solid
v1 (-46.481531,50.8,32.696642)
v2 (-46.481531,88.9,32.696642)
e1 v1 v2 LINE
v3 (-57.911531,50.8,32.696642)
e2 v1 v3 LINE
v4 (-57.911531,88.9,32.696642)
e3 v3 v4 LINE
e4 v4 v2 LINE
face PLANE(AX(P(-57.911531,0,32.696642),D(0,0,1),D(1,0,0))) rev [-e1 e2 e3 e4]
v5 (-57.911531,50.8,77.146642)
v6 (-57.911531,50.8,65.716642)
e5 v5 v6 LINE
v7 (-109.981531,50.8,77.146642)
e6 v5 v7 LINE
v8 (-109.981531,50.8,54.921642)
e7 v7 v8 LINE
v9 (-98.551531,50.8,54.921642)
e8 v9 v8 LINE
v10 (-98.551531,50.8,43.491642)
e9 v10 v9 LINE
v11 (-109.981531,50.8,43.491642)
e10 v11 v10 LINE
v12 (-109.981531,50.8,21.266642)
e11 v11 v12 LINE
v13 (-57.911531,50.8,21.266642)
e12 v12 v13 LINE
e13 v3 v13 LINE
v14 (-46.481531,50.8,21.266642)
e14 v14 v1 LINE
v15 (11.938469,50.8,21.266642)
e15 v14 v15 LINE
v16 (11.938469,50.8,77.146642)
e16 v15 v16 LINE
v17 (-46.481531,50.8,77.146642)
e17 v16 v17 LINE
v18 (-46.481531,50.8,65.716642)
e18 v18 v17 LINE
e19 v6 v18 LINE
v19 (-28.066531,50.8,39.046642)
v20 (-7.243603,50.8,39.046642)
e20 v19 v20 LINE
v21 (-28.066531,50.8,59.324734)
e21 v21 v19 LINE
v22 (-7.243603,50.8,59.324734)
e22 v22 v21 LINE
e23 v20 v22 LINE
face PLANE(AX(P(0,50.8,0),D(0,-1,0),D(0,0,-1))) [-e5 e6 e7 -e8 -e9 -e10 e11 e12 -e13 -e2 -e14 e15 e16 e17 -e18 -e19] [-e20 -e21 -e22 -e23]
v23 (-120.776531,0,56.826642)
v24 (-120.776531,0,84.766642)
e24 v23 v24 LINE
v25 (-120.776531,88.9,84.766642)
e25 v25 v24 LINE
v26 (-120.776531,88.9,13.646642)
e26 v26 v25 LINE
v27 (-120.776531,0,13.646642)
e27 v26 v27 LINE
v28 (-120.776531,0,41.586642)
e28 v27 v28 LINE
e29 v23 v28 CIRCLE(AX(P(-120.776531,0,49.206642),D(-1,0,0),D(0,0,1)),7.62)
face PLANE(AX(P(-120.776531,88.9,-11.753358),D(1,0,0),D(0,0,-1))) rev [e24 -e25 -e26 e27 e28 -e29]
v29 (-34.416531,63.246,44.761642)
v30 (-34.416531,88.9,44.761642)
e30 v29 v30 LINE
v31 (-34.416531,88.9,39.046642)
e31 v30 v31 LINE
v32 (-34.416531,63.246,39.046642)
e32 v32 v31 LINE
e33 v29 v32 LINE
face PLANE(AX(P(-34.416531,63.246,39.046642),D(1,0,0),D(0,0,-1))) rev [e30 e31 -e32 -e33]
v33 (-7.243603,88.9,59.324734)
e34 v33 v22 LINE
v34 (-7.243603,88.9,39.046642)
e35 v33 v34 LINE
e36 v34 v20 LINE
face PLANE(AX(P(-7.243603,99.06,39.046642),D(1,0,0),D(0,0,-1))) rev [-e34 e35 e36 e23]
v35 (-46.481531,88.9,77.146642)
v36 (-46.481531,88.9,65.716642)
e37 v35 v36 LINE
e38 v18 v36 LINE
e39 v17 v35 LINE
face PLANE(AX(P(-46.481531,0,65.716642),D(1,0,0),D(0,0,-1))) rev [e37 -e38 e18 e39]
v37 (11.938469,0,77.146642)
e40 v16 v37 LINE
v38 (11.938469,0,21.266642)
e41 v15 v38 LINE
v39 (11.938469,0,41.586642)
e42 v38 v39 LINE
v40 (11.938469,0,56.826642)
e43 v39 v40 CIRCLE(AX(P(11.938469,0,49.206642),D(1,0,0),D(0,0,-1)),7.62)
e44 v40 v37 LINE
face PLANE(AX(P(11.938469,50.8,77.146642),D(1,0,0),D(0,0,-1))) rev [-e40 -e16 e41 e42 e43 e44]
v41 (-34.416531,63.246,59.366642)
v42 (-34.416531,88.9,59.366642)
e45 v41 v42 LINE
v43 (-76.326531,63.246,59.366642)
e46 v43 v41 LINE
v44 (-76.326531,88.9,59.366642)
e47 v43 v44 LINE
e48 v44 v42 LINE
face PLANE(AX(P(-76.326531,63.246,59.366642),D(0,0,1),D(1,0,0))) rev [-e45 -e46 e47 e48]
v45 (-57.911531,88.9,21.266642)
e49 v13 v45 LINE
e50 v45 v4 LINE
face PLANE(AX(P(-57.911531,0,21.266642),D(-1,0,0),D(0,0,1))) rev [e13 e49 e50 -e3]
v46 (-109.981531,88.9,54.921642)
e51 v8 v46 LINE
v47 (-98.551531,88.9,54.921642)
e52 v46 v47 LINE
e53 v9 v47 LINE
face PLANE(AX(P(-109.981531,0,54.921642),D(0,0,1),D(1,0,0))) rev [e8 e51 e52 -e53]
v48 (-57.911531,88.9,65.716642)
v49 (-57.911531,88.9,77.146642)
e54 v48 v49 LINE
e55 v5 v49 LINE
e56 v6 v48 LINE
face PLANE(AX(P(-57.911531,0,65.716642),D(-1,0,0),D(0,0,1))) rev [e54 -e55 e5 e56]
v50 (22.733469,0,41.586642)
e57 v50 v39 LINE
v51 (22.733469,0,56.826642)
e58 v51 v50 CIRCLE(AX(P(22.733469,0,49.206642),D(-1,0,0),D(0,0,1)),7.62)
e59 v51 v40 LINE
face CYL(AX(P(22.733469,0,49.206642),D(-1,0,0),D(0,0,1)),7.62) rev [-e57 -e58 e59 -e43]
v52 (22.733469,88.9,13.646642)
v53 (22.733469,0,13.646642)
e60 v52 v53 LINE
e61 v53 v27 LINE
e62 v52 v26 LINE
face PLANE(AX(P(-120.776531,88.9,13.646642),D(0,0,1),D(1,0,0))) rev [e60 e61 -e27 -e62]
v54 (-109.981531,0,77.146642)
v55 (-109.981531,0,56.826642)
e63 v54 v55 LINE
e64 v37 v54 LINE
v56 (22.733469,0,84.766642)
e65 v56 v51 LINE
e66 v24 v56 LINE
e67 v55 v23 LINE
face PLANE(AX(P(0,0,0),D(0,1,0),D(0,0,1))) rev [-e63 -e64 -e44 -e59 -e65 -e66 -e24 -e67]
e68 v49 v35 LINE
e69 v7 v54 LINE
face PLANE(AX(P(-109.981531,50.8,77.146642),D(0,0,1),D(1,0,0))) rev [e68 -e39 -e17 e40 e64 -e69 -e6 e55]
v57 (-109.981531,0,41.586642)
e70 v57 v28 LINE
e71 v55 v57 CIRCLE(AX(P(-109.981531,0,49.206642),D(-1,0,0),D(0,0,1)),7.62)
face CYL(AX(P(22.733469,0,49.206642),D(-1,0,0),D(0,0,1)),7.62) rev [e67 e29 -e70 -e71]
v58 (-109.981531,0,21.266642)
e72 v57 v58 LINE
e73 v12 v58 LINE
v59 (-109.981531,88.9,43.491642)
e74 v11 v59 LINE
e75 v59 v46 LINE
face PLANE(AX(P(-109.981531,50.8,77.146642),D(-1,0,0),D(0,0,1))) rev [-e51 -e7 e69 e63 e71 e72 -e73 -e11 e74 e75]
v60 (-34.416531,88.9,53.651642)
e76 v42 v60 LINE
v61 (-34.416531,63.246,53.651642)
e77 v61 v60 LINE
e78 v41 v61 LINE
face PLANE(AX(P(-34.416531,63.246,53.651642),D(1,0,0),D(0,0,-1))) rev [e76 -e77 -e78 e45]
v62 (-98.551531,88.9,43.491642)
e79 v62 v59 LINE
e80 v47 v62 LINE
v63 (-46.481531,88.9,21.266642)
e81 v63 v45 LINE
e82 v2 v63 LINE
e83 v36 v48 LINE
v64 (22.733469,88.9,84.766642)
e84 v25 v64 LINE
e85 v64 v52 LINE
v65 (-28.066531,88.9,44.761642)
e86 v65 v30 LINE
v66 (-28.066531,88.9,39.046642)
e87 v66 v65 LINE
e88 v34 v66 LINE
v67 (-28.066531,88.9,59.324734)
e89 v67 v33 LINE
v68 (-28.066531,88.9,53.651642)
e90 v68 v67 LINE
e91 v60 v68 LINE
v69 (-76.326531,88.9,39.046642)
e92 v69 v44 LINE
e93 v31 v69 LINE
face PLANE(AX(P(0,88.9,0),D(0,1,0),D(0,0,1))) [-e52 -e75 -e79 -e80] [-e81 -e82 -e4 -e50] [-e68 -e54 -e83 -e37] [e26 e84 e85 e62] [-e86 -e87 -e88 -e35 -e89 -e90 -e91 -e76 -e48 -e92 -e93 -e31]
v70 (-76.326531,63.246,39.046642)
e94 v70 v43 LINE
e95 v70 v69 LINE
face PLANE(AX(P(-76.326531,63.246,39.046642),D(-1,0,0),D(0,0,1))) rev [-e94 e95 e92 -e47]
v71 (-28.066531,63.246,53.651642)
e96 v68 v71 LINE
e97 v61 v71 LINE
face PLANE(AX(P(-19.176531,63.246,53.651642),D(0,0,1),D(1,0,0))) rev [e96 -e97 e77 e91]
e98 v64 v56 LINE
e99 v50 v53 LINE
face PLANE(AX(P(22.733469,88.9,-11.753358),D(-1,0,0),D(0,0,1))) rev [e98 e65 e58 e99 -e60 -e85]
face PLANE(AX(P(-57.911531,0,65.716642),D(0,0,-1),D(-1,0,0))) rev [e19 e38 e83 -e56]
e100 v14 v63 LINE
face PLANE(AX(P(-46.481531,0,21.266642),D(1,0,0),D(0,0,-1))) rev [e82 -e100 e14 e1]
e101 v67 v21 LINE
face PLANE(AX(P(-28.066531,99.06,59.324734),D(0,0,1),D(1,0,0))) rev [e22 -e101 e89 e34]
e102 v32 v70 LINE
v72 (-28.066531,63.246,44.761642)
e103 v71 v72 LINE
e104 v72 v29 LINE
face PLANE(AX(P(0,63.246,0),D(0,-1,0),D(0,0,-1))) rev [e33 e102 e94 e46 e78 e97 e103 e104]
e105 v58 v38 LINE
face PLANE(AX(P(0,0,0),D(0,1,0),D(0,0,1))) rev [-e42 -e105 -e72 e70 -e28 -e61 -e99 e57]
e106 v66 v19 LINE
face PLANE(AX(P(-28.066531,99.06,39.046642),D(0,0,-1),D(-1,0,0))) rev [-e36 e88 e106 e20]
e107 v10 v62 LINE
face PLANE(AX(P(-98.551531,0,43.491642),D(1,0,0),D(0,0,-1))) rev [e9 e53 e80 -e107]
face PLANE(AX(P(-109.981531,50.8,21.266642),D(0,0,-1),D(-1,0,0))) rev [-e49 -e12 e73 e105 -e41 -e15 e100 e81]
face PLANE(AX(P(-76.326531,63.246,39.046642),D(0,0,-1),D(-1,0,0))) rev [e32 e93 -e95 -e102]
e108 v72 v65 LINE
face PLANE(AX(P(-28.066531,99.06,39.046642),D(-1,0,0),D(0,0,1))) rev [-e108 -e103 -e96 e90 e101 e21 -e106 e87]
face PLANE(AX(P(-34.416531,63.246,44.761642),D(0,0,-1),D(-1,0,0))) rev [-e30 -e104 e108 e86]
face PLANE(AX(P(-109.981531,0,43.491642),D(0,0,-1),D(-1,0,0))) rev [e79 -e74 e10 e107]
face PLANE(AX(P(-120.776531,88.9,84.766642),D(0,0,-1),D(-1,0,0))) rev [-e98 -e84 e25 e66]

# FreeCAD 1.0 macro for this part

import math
import FreeCAD as App
import Part
import Sketcher
Q = App.Units.Quantity


def add_polygon(sketch, points):
    """Adds a closed chain of lines whose ends are joined by coincident constraints."""
    first, n = sketch.GeometryCount, len(points)
    for a, b in zip(points, points[1:] + points[:1]):
        sketch.addGeometry(Part.LineSegment(App.Vector(*a, 0), App.Vector(*b, 0)), False)
    for i in range(n):
        sketch.addConstraint(Sketcher.Constraint("Coincident", first + i, 2, first + (i + 1) % n, 1))

doc = App.newDocument("Part")
body = doc.addObject("PartDesign::Body", "Body")

# Sketch on XZ plane
sketch1 = body.newObject("Sketcher::SketchObject", "Sketch")
sketch1.AttachmentSupport = (doc.getObject("XZ_Plane"), [""])
sketch1.MapMode = "FlatFace"
add_polygon(sketch1, [(-120.776531, -11.753358), (-120.776531, 110.166642), (22.733469, 110.166642), (22.733469, -11.753358)])  # lines 0-3
sketch1.addConstraint(Sketcher.Constraint("Vertical", 0))
sketch1.addConstraint(Sketcher.Constraint("Horizontal", 1))
sketch1.addConstraint(Sketcher.Constraint("Vertical", 2))
sketch1.addConstraint(Sketcher.Constraint("Horizontal", 3))
sketch1.addConstraint(Sketcher.Constraint("DistanceY", 0, 1, 0, 2, Q("4.8 in")))
sketch1.addConstraint(Sketcher.Constraint("DistanceX", 1, 1, 1, 2, Q("5.65 in")))
sketch1.addConstraint(Sketcher.Constraint("DistanceX", 0, 2, -1, 1, Q("120.776531 mm")))
sketch1.addConstraint(Sketcher.Constraint("DistanceY", -1, 1, 0, 2, Q("110.166642 mm")))
pad1 = body.newObject("PartDesign::Pad", "Pad")
pad1.Profile = sketch1
pad1.Length = Q("3.5 in")
pad1.Reversed = True

# Sketch on XZ plane
sketch2 = body.newObject("Sketcher::SketchObject", "Sketch001")
sketch2.AttachmentSupport = (doc.getObject("XZ_Plane"), [""])
sketch2.MapMode = "FlatFace"
sketch2.AttachmentOffset = App.Placement(App.Vector(0, 0, -3.5 * 25.4), App.Rotation())
add_polygon(sketch2, [(-34.416531, 39.046642), (-76.326531, 39.046642), (-76.326531, 59.366642), (-34.416531, 59.366642), (-34.416531, 53.651642), (-19.176531, 53.651642), (-19.176531, 44.761642), (-34.416531, 44.761642)])  # lines 0-7
sketch2.addConstraint(Sketcher.Constraint("Horizontal", 0))
sketch2.addConstraint(Sketcher.Constraint("Vertical", 1))
sketch2.addConstraint(Sketcher.Constraint("Horizontal", 2))
sketch2.addConstraint(Sketcher.Constraint("Vertical", 3))
sketch2.addConstraint(Sketcher.Constraint("Horizontal", 4))
sketch2.addConstraint(Sketcher.Constraint("Vertical", 5))
sketch2.addConstraint(Sketcher.Constraint("Horizontal", 6))
sketch2.addConstraint(Sketcher.Constraint("Vertical", 7))
sketch2.addConstraint(Sketcher.Constraint("Vertical", 3, 2, 6, 2))
sketch2.addConstraint(Sketcher.Constraint("Equal", 3, 7))
sketch2.addConstraint(Sketcher.Constraint("DistanceX", 4, 1, 4, 2, Q("0.6 in")))
sketch2.addConstraint(Sketcher.Constraint("DistanceY", 1, 1, 1, 2, Q("0.8 in")))
sketch2.addConstraint(Sketcher.Constraint("DistanceX", 0, 2, 0, 1, Q("1.65 in")))
sketch2.addConstraint(Sketcher.Constraint("DistanceY", 5, 2, 5, 1, Q("0.35 in")))
sketch2.addConstraint(Sketcher.Constraint("DistanceX", 0, 2, -1, 1, Q("76.326531 mm")))
sketch2.addConstraint(Sketcher.Constraint("DistanceY", -1, 1, 0, 2, Q("39.046642 mm")))
pocket1 = body.newObject("PartDesign::Pocket", "Pocket")
pocket1.Profile = sketch2
pocket1.Length = Q("1.01 in")
pocket1.Reversed = True

# Sketch on XZ plane
sketch3 = body.newObject("Sketcher::SketchObject", "Sketch002")
sketch3.AttachmentSupport = (doc.getObject("XZ_Plane"), [""])
sketch3.MapMode = "FlatFace"
add_polygon(sketch3, [(11.938469, 21.266642), (11.938469, 77.146642), (-109.981531, 77.146642), (-109.981531, 21.266642)])  # lines 0-3
sketch3.addConstraint(Sketcher.Constraint("Vertical", 0))
sketch3.addConstraint(Sketcher.Constraint("Horizontal", 1))
sketch3.addConstraint(Sketcher.Constraint("Vertical", 2))
sketch3.addConstraint(Sketcher.Constraint("Horizontal", 3))
sketch3.addConstraint(Sketcher.Constraint("DistanceX", 1, 2, 1, 1, Q("4.8 in")))
sketch3.addConstraint(Sketcher.Constraint("DistanceY", 0, 1, 0, 2, Q("2.2 in")))
sketch3.addConstraint(Sketcher.Constraint("DistanceX", -1, 1, 0, 2, Q("11.938469 mm")))
sketch3.addConstraint(Sketcher.Constraint("DistanceY", -1, 1, 0, 2, Q("77.146642 mm")))
pocket2 = body.newObject("PartDesign::Pocket", "Pocket001")
pocket2.Profile = sketch3
pocket2.Length = Q("2 in")

# Sketch on XZ plane
sketch4 = body.newObject("Sketcher::SketchObject", "Sketch003")
sketch4.AttachmentSupport = (doc.getObject("XZ_Plane"), [""])
sketch4.MapMode = "FlatFace"
sketch4.AttachmentOffset = App.Placement(App.Vector(0, 0, -2 * 25.4), App.Rotation())
add_polygon(sketch4, [(-28.066531, 59.324734), (-28.066531, 39.046642), (-7.243603, 39.046642), (-7.243603, 59.324734)])  # lines 0-3
sketch4.addConstraint(Sketcher.Constraint("Vertical", 0))
sketch4.addConstraint(Sketcher.Constraint("Horizontal", 1))
sketch4.addConstraint(Sketcher.Constraint("Vertical", 2))
sketch4.addConstraint(Sketcher.Constraint("Horizontal", 3))
sketch4.addConstraint(Sketcher.Constraint("DistanceX", 1, 1, 1, 2, Q("20.822928 mm")))
sketch4.addConstraint(Sketcher.Constraint("DistanceY", 0, 2, 0, 1, Q("20.278092 mm")))
sketch4.addConstraint(Sketcher.Constraint("DistanceX", 0, 2, -1, 1, Q("28.066531 mm")))
sketch4.addConstraint(Sketcher.Constraint("DistanceY", -1, 1, 0, 2, Q("39.046642 mm")))
pocket3 = body.newObject("PartDesign::Pocket", "Pocket002")
pocket3.Profile = sketch4
pocket3.Type = "ThroughAll"
pocket3.Midplane = True

# Sketch on XZ plane
sketch5 = body.newObject("Sketcher::SketchObject", "Sketch004")
sketch5.AttachmentSupport = (doc.getObject("XZ_Plane"), [""])
sketch5.MapMode = "FlatFace"
sketch5.AttachmentOffset = App.Placement(App.Vector(0, 0, -3.5 * 25.4), App.Rotation())
add_polygon(sketch5, [(-57.911531, 21.266642), (-57.911531, 32.696642), (-46.481531, 32.696642), (-46.481531, 21.266642)])  # lines 0-3
sketch5.addConstraint(Sketcher.Constraint("Vertical", 0))
sketch5.addConstraint(Sketcher.Constraint("Horizontal", 1))
sketch5.addConstraint(Sketcher.Constraint("Vertical", 2))
sketch5.addConstraint(Sketcher.Constraint("Horizontal", 3))
sketch5.addConstraint(Sketcher.Constraint("Equal", 3, 0))
sketch5.addConstraint(Sketcher.Constraint("DistanceX", 1, 1, 1, 2, Q("0.45 in")))
sketch5.addConstraint(Sketcher.Constraint("DistanceX", 0, 2, -1, 1, Q("57.911531 mm")))
sketch5.addConstraint(Sketcher.Constraint("DistanceY", -1, 1, 0, 2, Q("32.696642 mm")))
pocket4 = body.newObject("PartDesign::Pocket", "Pocket003")
pocket4.Profile = sketch5
pocket4.Type = "ThroughAll"
pocket4.Reversed = True

# Sketch on XZ plane
sketch6 = body.newObject("Sketcher::SketchObject", "Sketch005")
sketch6.AttachmentSupport = (doc.getObject("XZ_Plane"), [""])
sketch6.MapMode = "FlatFace"
sketch6.AttachmentOffset = App.Placement(App.Vector(0, 0, -3.5 * 25.4), App.Rotation())
add_polygon(sketch6, [(-57.911531, 65.716642), (-57.911531, 77.146642), (-46.481531, 77.146642), (-46.481531, 65.716642)])  # lines 0-3
sketch6.addConstraint(Sketcher.Constraint("Vertical", 0))
sketch6.addConstraint(Sketcher.Constraint("Horizontal", 1))
sketch6.addConstraint(Sketcher.Constraint("Vertical", 2))
sketch6.addConstraint(Sketcher.Constraint("Horizontal", 3))
sketch6.addConstraint(Sketcher.Constraint("Equal", 3, 0))
sketch6.addConstraint(Sketcher.Constraint("DistanceX", 1, 1, 1, 2, Q("0.45 in")))
sketch6.addConstraint(Sketcher.Constraint("DistanceX", 0, 2, -1, 1, Q("57.911531 mm")))
sketch6.addConstraint(Sketcher.Constraint("DistanceY", -1, 1, 0, 2, Q("77.146642 mm")))
pocket5 = body.newObject("PartDesign::Pocket", "Pocket004")
pocket5.Profile = sketch6
pocket5.Type = "ThroughAll"
pocket5.Reversed = True

# Sketch on XZ plane
sketch7 = body.newObject("Sketcher::SketchObject", "Sketch006")
sketch7.AttachmentSupport = (doc.getObject("XZ_Plane"), [""])
sketch7.MapMode = "FlatFace"
sketch7.AttachmentOffset = App.Placement(App.Vector(0, 0, -3.5 * 25.4), App.Rotation())
add_polygon(sketch7, [(-109.981531, 43.491642), (-109.981531, 54.921642), (-98.551531, 54.921642), (-98.551531, 43.491642)])  # lines 0-3
sketch7.addConstraint(Sketcher.Constraint("Vertical", 0))
sketch7.addConstraint(Sketcher.Constraint("Horizontal", 1))
sketch7.addConstraint(Sketcher.Constraint("Vertical", 2))
sketch7.addConstraint(Sketcher.Constraint("Horizontal", 3))
sketch7.addConstraint(Sketcher.Constraint("Equal", 3, 0))
sketch7.addConstraint(Sketcher.Constraint("DistanceX", 1, 1, 1, 2, Q("0.45 in")))
sketch7.addConstraint(Sketcher.Constraint("DistanceX", 0, 2, -1, 1, Q("109.981531 mm")))
sketch7.addConstraint(Sketcher.Constraint("DistanceY", -1, 1, 0, 2, Q("54.921642 mm")))
pocket6 = body.newObject("PartDesign::Pocket", "Pocket005")
pocket6.Profile = sketch7
pocket6.Type = "ThroughAll"
pocket6.Reversed = True

# Sketch on XZ plane
sketch8 = body.newObject("Sketcher::SketchObject", "Sketch007")
sketch8.AttachmentSupport = (doc.getObject("XZ_Plane"), [""])
sketch8.MapMode = "FlatFace"
add_polygon(sketch8, [(22.733469, 84.766642), (22.733469, 110.166642), (-120.776531, 110.166642), (-120.776531, 84.766642)])  # lines 0-3
add_polygon(sketch8, [(22.733469, -11.753358), (22.733469, 13.646642), (-120.776531, 13.646642), (-120.776531, -11.753358)])  # lines 4-7
sketch8.addConstraint(Sketcher.Constraint("Vertical", 0))
sketch8.addConstraint(Sketcher.Constraint("Horizontal", 1))
sketch8.addConstraint(Sketcher.Constraint("Vertical", 2))
sketch8.addConstraint(Sketcher.Constraint("Horizontal", 3))
sketch8.addConstraint(Sketcher.Constraint("Vertical", 4))
sketch8.addConstraint(Sketcher.Constraint("Horizontal", 5))
sketch8.addConstraint(Sketcher.Constraint("Vertical", 6))
sketch8.addConstraint(Sketcher.Constraint("Horizontal", 7))
sketch8.addConstraint(Sketcher.Constraint("Vertical", 3, 2, 4, 2))
sketch8.addConstraint(Sketcher.Constraint("Vertical", 2, 2, 5, 2))
sketch8.addConstraint(Sketcher.Constraint("Equal", 2, 4))
sketch8.addConstraint(Sketcher.Constraint("DistanceY", 0, 1, 0, 2, Q("1 in")))
sketch8.addConstraint(Sketcher.Constraint("DistanceX", 1, 2, 1, 1, Q("5.65 in")))
sketch8.addConstraint(Sketcher.Constraint("DistanceY", 4, 2, 3, 2, Q("2.8 in")))
sketch8.addConstraint(Sketcher.Constraint("DistanceX", -1, 1, 0, 2, Q("22.733469 mm")))
sketch8.addConstraint(Sketcher.Constraint("DistanceY", -1, 1, 0, 2, Q("110.166642 mm")))
pocket7 = body.newObject("PartDesign::Pocket", "Pocket006")
pocket7.Profile = sketch8
pocket7.Type = "ThroughAll"

# Sketch on YZ plane
sketch9 = body.newObject("Sketcher::SketchObject", "Sketch008")
sketch9.AttachmentSupport = (doc.getObject("YZ_Plane"), [""])
sketch9.MapMode = "FlatFace"
sketch9.AttachmentOffset = App.Placement(App.Vector(0, 0, -120.776531), App.Rotation())
sketch9.addGeometry(Part.LineSegment(App.Vector(0, 41.586642, 0), App.Vector(0, 56.826642, 0)), False)
sketch9.addGeometry(Part.ArcOfCircle(Part.Circle(App.Vector(0, 49.206642, 0), App.Vector(0, 0, 1), 7.62), math.radians(-90), math.radians(90)), False)
sketch9.addConstraint(Sketcher.Constraint("Coincident", 0, 1, 1, 1))
sketch9.addConstraint(Sketcher.Constraint("Coincident", 1, 2, 0, 2))
sketch9.addConstraint(Sketcher.Constraint("Vertical", 0))
sketch9.addConstraint(Sketcher.Constraint("PointOnObject", 1, 3, -2))
sketch9.addConstraint(Sketcher.Constraint("PointOnObject", 0, 1, -2))
sketch9.addConstraint(Sketcher.Constraint("Radius", 1, Q("0.3 in")))
sketch9.addConstraint(Sketcher.Constraint("DistanceY", -1, 1, 1, 3, Q("49.206642 mm")))
pocket8 = body.newObject("PartDesign::Pocket", "Pocket007")
pocket8.Profile = sketch9
pocket8.Type = "ThroughAll"
pocket8.Midplane = True

doc.recompute()
